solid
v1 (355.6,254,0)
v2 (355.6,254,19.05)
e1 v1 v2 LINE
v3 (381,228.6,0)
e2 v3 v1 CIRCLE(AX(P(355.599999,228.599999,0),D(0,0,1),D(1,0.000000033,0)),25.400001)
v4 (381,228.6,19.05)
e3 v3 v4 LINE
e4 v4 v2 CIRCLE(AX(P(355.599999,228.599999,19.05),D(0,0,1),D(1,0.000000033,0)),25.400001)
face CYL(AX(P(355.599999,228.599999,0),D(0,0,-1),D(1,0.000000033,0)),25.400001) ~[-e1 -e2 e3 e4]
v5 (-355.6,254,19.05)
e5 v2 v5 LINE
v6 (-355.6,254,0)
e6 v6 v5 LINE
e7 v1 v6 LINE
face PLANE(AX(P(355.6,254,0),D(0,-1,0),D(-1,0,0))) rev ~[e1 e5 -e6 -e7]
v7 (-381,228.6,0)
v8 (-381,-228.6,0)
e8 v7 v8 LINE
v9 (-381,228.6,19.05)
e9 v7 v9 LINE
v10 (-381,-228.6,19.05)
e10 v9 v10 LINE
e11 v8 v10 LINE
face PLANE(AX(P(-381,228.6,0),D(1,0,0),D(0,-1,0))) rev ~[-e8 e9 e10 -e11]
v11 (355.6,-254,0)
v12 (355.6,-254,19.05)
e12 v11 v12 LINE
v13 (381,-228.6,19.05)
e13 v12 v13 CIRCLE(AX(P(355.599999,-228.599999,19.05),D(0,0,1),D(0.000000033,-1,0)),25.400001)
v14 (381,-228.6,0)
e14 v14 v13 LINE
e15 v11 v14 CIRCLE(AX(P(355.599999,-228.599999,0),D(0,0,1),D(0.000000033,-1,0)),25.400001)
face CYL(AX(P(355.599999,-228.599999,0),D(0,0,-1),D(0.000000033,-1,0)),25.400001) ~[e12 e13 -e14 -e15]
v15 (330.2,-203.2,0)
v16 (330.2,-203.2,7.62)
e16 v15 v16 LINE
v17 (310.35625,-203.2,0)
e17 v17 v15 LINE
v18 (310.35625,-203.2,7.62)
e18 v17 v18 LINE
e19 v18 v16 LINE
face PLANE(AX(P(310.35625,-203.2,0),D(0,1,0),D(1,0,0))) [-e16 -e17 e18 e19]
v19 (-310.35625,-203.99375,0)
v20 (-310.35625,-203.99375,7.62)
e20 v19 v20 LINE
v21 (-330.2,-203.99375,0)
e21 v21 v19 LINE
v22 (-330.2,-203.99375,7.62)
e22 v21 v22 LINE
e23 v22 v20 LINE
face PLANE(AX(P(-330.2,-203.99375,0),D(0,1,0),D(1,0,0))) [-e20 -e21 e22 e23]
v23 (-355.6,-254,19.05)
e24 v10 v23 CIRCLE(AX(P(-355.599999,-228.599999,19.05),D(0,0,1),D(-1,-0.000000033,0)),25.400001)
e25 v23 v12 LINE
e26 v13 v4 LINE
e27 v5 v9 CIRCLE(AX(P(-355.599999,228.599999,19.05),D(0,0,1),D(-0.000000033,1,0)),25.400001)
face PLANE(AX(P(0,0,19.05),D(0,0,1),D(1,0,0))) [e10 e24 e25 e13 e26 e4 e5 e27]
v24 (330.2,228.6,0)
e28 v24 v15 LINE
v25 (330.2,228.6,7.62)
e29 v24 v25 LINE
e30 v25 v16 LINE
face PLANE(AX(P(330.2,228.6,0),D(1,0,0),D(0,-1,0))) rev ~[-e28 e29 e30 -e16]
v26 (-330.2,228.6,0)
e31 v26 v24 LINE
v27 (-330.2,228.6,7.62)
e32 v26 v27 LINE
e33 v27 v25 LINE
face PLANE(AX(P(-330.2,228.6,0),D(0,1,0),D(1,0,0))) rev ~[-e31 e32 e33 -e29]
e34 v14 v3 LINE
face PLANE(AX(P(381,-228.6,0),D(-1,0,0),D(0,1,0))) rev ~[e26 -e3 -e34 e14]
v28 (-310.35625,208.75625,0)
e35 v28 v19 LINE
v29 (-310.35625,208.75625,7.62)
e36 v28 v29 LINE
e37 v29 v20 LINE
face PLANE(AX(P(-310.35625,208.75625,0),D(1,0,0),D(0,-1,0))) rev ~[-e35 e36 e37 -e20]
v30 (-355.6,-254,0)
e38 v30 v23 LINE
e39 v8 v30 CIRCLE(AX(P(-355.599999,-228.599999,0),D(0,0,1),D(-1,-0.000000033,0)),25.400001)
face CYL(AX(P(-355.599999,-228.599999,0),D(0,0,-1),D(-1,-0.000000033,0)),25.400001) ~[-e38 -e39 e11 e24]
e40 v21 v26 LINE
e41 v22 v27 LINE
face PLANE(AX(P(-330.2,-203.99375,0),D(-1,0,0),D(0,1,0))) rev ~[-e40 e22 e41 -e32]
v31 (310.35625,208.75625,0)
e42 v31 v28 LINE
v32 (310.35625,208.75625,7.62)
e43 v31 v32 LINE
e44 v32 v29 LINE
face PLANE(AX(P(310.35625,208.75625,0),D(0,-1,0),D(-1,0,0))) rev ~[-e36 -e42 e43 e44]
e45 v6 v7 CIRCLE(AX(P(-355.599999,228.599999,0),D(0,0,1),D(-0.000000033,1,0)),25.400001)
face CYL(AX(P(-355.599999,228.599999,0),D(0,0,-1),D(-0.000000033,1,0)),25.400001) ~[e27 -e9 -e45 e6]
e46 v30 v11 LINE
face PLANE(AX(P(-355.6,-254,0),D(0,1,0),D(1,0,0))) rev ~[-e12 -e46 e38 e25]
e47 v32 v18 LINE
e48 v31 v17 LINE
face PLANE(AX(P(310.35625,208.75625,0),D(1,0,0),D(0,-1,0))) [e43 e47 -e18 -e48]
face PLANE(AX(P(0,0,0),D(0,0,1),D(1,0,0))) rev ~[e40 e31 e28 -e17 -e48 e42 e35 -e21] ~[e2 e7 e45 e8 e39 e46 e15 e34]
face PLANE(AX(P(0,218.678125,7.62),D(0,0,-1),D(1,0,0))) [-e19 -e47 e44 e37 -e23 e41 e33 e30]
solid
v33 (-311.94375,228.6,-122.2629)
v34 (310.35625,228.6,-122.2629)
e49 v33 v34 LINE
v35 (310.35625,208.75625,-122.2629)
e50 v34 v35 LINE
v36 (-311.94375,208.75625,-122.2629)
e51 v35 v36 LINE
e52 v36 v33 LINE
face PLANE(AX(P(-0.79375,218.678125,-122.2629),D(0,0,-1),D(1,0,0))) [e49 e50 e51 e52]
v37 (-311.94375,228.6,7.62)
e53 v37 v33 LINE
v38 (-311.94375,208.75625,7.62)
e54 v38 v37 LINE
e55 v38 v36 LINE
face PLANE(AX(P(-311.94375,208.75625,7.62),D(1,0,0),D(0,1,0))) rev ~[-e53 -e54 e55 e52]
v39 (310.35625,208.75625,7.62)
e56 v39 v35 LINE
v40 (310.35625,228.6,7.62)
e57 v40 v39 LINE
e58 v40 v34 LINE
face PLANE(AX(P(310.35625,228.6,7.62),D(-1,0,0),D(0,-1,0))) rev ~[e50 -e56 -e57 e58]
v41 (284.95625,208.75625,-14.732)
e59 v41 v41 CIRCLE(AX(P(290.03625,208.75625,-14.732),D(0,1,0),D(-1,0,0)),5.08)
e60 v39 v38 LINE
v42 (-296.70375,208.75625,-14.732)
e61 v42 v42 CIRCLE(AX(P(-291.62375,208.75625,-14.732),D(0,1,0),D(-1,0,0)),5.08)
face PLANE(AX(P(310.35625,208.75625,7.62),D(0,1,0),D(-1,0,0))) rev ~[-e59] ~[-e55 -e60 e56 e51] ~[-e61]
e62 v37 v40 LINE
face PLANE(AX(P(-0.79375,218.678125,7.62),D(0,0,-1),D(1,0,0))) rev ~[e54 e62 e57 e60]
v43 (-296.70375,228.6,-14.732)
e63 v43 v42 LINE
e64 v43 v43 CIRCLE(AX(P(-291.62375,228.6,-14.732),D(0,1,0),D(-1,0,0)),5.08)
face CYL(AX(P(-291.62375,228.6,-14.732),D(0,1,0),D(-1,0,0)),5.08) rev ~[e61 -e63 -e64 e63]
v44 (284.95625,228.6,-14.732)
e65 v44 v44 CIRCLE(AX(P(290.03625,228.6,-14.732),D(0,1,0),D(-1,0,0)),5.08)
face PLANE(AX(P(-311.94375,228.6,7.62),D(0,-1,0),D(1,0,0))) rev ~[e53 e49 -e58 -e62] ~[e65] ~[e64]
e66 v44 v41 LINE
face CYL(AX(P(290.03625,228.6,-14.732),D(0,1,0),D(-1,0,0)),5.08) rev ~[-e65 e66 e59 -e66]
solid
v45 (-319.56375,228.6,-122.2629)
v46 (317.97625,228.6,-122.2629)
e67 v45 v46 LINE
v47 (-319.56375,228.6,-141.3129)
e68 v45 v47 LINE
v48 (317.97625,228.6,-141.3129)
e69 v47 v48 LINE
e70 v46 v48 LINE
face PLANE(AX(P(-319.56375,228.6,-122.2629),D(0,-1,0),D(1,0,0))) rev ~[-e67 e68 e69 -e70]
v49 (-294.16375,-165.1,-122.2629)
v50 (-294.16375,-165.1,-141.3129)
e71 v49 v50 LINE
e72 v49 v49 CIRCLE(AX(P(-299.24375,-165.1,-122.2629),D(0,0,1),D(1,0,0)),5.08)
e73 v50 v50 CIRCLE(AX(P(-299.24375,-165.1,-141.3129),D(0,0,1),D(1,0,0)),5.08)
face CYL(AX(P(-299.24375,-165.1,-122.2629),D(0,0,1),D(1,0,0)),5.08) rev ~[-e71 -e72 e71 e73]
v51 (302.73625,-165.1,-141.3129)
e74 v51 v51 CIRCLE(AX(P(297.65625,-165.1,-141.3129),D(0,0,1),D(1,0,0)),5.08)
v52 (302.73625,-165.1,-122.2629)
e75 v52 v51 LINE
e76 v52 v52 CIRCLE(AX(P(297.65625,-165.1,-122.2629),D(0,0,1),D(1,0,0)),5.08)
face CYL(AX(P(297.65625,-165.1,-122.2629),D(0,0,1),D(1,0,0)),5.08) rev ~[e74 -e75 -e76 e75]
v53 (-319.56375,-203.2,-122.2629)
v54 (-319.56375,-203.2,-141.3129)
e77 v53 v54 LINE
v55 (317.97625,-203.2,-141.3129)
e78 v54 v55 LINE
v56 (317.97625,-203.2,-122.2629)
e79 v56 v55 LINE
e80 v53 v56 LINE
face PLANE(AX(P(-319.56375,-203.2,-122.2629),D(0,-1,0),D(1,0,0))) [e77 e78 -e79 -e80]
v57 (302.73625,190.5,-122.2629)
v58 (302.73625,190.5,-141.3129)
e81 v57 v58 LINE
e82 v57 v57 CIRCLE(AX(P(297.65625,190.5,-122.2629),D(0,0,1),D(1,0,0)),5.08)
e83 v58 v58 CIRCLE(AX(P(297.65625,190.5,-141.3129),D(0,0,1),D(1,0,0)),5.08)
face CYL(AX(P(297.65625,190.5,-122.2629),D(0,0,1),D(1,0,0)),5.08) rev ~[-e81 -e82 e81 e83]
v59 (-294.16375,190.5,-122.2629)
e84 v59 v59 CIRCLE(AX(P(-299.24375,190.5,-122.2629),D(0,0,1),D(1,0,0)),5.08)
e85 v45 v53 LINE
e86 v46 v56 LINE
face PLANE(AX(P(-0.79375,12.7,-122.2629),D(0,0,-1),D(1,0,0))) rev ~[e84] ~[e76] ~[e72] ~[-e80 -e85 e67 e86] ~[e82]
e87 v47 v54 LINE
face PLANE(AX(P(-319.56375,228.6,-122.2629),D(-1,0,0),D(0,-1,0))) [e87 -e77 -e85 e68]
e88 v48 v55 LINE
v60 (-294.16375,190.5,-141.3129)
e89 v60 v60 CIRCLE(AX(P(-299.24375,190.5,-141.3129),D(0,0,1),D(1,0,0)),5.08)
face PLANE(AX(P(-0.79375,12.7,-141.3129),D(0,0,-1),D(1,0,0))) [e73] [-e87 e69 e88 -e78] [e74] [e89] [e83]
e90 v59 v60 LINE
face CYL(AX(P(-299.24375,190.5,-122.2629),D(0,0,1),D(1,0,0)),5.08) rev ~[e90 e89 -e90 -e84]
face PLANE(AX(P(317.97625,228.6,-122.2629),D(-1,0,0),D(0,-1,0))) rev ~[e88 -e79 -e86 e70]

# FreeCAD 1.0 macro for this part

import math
import FreeCAD as App
import Part
import Sketcher
Q = App.Units.Quantity


def add_polygon(sketch, points):
    """Adds a closed chain of lines whose ends are joined by coincident constraints."""
    first, n = sketch.GeometryCount, len(points)
    for a, b in zip(points, points[1:] + points[:1]):
        sketch.addGeometry(Part.LineSegment(App.Vector(*a, 0), App.Vector(*b, 0)), False)
    for i in range(n):
        sketch.addConstraint(Sketcher.Constraint("Coincident", first + i, 2, first + (i + 1) % n, 1))

doc = App.newDocument("Part")
params = doc.addObject("Spreadsheet::Sheet", "Params")
for row, (alias, value) in enumerate([
    ("sketch1_radius", "1 in"),
    ("sketch1_width", "28 in"),
    ("sketch1_height", "18 in"),
    ("pad1_length", "0.75 in"),
    ("sketch2_width", "26 in"),
    ("sketch2_height", "17 in"),
    ("sketch2_height2", "16.25 in"),
    ("sketch2_width2", "0.78125 in"),
    ("sketch2_height3", "16.21875 in"),
    ("pocket1_length", "0.3 in"),
    ("sketch3_width", "24.5 in"),
    ("sketch3_height", "0.78125 in"),
    ("pad2_length", "5.1135 in"),
    ("sketch4_diameter", "0.4 in"),
    ("pocket2_length", "1 in"),
    ("sketch5_height", "17 in"),
    ("sketch5_width", "25.1 in"),
    ("pad3_length", "0.75 in"),
    ("sketch6_diameter", "0.4 in"),
    ("pocket3_length", "1 in"),
], start=1):
    params.set(f"A{row}", alias)
    params.set(f"B{row}", "=" + value)
    params.setAlias(f"B{row}", alias)

body = doc.addObject("PartDesign::Body", "Body")

# Sketch on XY plane
sketch1 = doc.addObject("Sketcher::SketchObject", "Sketch")
body.addObject(sketch1)
sketch1.AttachmentSupport = (doc.XY_Plane, [""])
sketch1.MapMode = "FlatFace"
sketch1.addGeometry(Part.LineSegment(App.Vector(356, 254, 0), App.Vector(-356, 254, 0)), False)
sketch1.addGeometry(Part.ArcOfCircle(Part.Circle(App.Vector(-356, 229, 0), App.Vector(0, 0, 1), 25), math.radians(90), math.radians(180)), False)
sketch1.addGeometry(Part.LineSegment(App.Vector(-381, 229, 0), App.Vector(-381, -229, 0)), False)
sketch1.addGeometry(Part.ArcOfCircle(Part.Circle(App.Vector(-356, -229, 0), App.Vector(0, 0, 1), 25), math.radians(-180), math.radians(-90)), False)
sketch1.addGeometry(Part.LineSegment(App.Vector(-356, -254, 0), App.Vector(356, -254, 0)), False)
sketch1.addGeometry(Part.ArcOfCircle(Part.Circle(App.Vector(356, -229, 0), App.Vector(0, 0, 1), 25), math.radians(-90), math.radians(0)), False)
sketch1.addGeometry(Part.LineSegment(App.Vector(381, -229, 0), App.Vector(381, 229, 0)), False)
sketch1.addGeometry(Part.ArcOfCircle(Part.Circle(App.Vector(356, 229, 0), App.Vector(0, 0, 1), 25), math.radians(0), math.radians(90)), False)
sketch1.addConstraint(Sketcher.Constraint("Tangent", 0, 2, 1, 1))
sketch1.addConstraint(Sketcher.Constraint("Tangent", 1, 2, 2, 1))
sketch1.addConstraint(Sketcher.Constraint("Tangent", 2, 2, 3, 1))
sketch1.addConstraint(Sketcher.Constraint("Tangent", 3, 2, 4, 1))
sketch1.addConstraint(Sketcher.Constraint("Tangent", 4, 2, 5, 1))
sketch1.addConstraint(Sketcher.Constraint("Tangent", 5, 2, 6, 1))
sketch1.addConstraint(Sketcher.Constraint("Tangent", 6, 2, 7, 1))
sketch1.addConstraint(Sketcher.Constraint("Tangent", 7, 2, 0, 1))
sketch1.addConstraint(Sketcher.Constraint("Horizontal", 0))
sketch1.addConstraint(Sketcher.Constraint("Vertical", 2))
sketch1.addConstraint(Sketcher.Constraint("Horizontal", 4))
sketch1.addConstraint(Sketcher.Constraint("Vertical", 6))
sketch1.addConstraint(Sketcher.Constraint("Equal", 1, 3))
sketch1.addConstraint(Sketcher.Constraint("Equal", 3, 5))
sketch1.addConstraint(Sketcher.Constraint("Equal", 5, 7))
sketch1.addConstraint(Sketcher.Constraint("Symmetric", 1, 3, 5, 3, -1, 1))
sketch1.addConstraint(Sketcher.Constraint("Radius", 1, Q("1 in")))
sketch1.addConstraint(Sketcher.Constraint("DistanceX", 0, 2, 0, 1, Q("28 in")))
sketch1.addConstraint(Sketcher.Constraint("DistanceY", 2, 2, 2, 1, Q("18 in")))
sketch1.setExpression("Constraints[16]", "Params.sketch1_radius")
sketch1.setExpression("Constraints[17]", "Params.sketch1_width")
sketch1.setExpression("Constraints[18]", "Params.sketch1_height")
pad1 = doc.addObject("PartDesign::Pad", "Pad")
body.addObject(pad1)
pad1.Profile = sketch1
pad1.setExpression("Length", "Params.pad1_length")

# Sketch on XY plane
sketch2 = doc.addObject("Sketcher::SketchObject", "Sketch001")
body.addObject(sketch2)
sketch2.AttachmentSupport = (doc.XY_Plane, [""])
sketch2.MapMode = "FlatFace"
add_polygon(sketch2, [(-330, 229), (330, 229), (330, -203), (310, -203), (310, 209), (-310, 209), (-310, -204), (-330, -204)])  # lines 0-7
sketch2.addConstraint(Sketcher.Constraint("Horizontal", 0))
sketch2.addConstraint(Sketcher.Constraint("Vertical", 1))
sketch2.addConstraint(Sketcher.Constraint("Horizontal", 2))
sketch2.addConstraint(Sketcher.Constraint("Vertical", 3))
sketch2.addConstraint(Sketcher.Constraint("Horizontal", 4))
sketch2.addConstraint(Sketcher.Constraint("Vertical", 5))
sketch2.addConstraint(Sketcher.Constraint("Horizontal", 6))
sketch2.addConstraint(Sketcher.Constraint("Vertical", 7))
sketch2.addConstraint(Sketcher.Constraint("Equal", 2, 6))
sketch2.addConstraint(Sketcher.Constraint("DistanceX", 0, 1, 0, 2, Q("26 in")))
sketch2.addConstraint(Sketcher.Constraint("DistanceY", 1, 2, 1, 1, Q("17 in")))
sketch2.addConstraint(Sketcher.Constraint("DistanceX", -1, 1, 0, 2, Q("13 in")))
sketch2.addConstraint(Sketcher.Constraint("DistanceY", -1, 1, 0, 2, Q("9 in")))
sketch2.addConstraint(Sketcher.Constraint("DistanceY", 5, 2, 5, 1, Q("16.25 in")))
sketch2.addConstraint(Sketcher.Constraint("DistanceX", 2, 2, 2, 1, Q("0.78125 in")))
sketch2.addConstraint(Sketcher.Constraint("DistanceY", 3, 1, 3, 2, Q("16.21875 in")))
sketch2.setExpression("Constraints[17]", "Params.sketch2_width")
sketch2.setExpression("Constraints[18]", "Params.sketch2_height")
sketch2.setExpression("Constraints[21]", "Params.sketch2_height2")
sketch2.setExpression("Constraints[22]", "Params.sketch2_width2")
sketch2.setExpression("Constraints[23]", "Params.sketch2_height3")
pocket1 = doc.addObject("PartDesign::Pocket", "Pocket")
body.addObject(pocket1)
pocket1.Profile = sketch2
pocket1.setExpression("Length", "Params.pocket1_length")
pocket1.Reversed = True
body2 = doc.addObject("PartDesign::Body", "Body001")

# Sketch on XY plane
sketch3 = doc.addObject("Sketcher::SketchObject", "Sketch002")
body2.addObject(sketch3)
sketch3.AttachmentSupport = (doc.getObject("XY_Plane001"), [""])
sketch3.MapMode = "FlatFace"
sketch3.AttachmentOffset = App.Placement(App.Vector(0, 0, 0.3 * 25.4), App.Rotation())
add_polygon(sketch3, [(310, 229), (310, 209), (-312, 209), (-312, 229)])  # lines 0-3
sketch3.addConstraint(Sketcher.Constraint("Vertical", 0))
sketch3.addConstraint(Sketcher.Constraint("Horizontal", 1))
sketch3.addConstraint(Sketcher.Constraint("Vertical", 2))
sketch3.addConstraint(Sketcher.Constraint("Horizontal", 3))
sketch3.addConstraint(Sketcher.Constraint("DistanceX", 1, 2, 1, 1, Q("24.5 in")))
sketch3.addConstraint(Sketcher.Constraint("DistanceY", -1, 1, 2, 2, Q("9 in")))
sketch3.addConstraint(Sketcher.Constraint("DistanceY", 0, 2, 0, 1, Q("0.78125 in")))
sketch3.addConstraint(Sketcher.Constraint("DistanceX", -1, 1, 0, 2, Q("12.21875 in")))
sketch3.setExpression("Constraints[8]", "Params.sketch3_width")
sketch3.setExpression("Constraints[10]", "Params.sketch3_height")
pad2 = doc.addObject("PartDesign::Pad", "Pad001")
body2.addObject(pad2)
pad2.Profile = sketch3
pad2.setExpression("Length", "Params.pad2_length")
pad2.Reversed = True

# Sketch on XZ plane
sketch4 = doc.addObject("Sketcher::SketchObject", "Sketch003")
body2.addObject(sketch4)
sketch4.AttachmentSupport = (doc.getObject("XZ_Plane001"), [""])
sketch4.MapMode = "FlatFace"
sketch4.AttachmentOffset = App.Placement(App.Vector(0, 0, -9 * 25.4), App.Rotation())
sketch4.addGeometry(Part.Circle(App.Vector(290, -15, 0), App.Vector(0, 0, 1), 5), False)
sketch4.addGeometry(Part.Circle(App.Vector(-292, -15, 0), App.Vector(0, 0, 1), 5), False)
sketch4.addConstraint(Sketcher.Constraint("Equal", 0, 1))
sketch4.addConstraint(Sketcher.Constraint("Horizontal", 0, 3, 1, 3))
sketch4.addConstraint(Sketcher.Constraint("Diameter", 0, Q("0.4 in")))
sketch4.addConstraint(Sketcher.Constraint("DistanceX", 1, 3, 0, 3, Q("22.9 in")))
sketch4.addConstraint(Sketcher.Constraint("DistanceY", 0, 3, -1, 1, Q("0.58 in")))
sketch4.addConstraint(Sketcher.Constraint("DistanceX", -1, 1, 0, 3, Q("290.03625 mm")))
sketch4.setExpression("Constraints[2]", "Params.sketch4_diameter")
pocket2 = doc.addObject("PartDesign::Pocket", "Pocket001")
body2.addObject(pocket2)
pocket2.Profile = sketch4
pocket2.setExpression("Length", "Params.pocket2_length")
pocket2.Reversed = True
body3 = doc.addObject("PartDesign::Body", "Body002")

# Sketch on XY plane
sketch5 = doc.addObject("Sketcher::SketchObject", "Sketch004")
body3.addObject(sketch5)
sketch5.AttachmentSupport = (doc.getObject("XY_Plane002"), [""])
sketch5.MapMode = "FlatFace"
sketch5.AttachmentOffset = App.Placement(App.Vector(0, 0, -4.8135 * 25.4), App.Rotation())
add_polygon(sketch5, [(-320, -203), (-320, 229), (318, 229), (318, -203)])  # lines 0-3
sketch5.addConstraint(Sketcher.Constraint("Vertical", 0))
sketch5.addConstraint(Sketcher.Constraint("Horizontal", 1))
sketch5.addConstraint(Sketcher.Constraint("Vertical", 2))
sketch5.addConstraint(Sketcher.Constraint("Horizontal", 3))
sketch5.addConstraint(Sketcher.Constraint("DistanceY", 0, 1, 0, 2, Q("17 in")))
sketch5.addConstraint(Sketcher.Constraint("DistanceX", 1, 1, 1, 2, Q("25.1 in")))
sketch5.addConstraint(Sketcher.Constraint("DistanceY", -1, 1, 0, 2, Q("9 in")))
sketch5.addConstraint(Sketcher.Constraint("DistanceX", 0, 2, -1, 1, Q("319.56375 mm")))
sketch5.setExpression("Constraints[8]", "Params.sketch5_height")
sketch5.setExpression("Constraints[9]", "Params.sketch5_width")
pad3 = doc.addObject("PartDesign::Pad", "Pad002")
body3.addObject(pad3)
pad3.Profile = sketch5
pad3.setExpression("Length", "Params.pad3_length")
pad3.Reversed = True

# Sketch on XY plane
sketch6 = doc.addObject("Sketcher::SketchObject", "Sketch005")
body3.addObject(sketch6)
sketch6.AttachmentSupport = (doc.getObject("XY_Plane002"), [""])
sketch6.MapMode = "FlatFace"
sketch6.AttachmentOffset = App.Placement(App.Vector(0, 0, -4.8135 * 25.4), App.Rotation())
sketch6.addGeometry(Part.Circle(App.Vector(-299, 190, 0), App.Vector(0, 0, 1), 5), False)
sketch6.addGeometry(Part.Circle(App.Vector(298, 190, 0), App.Vector(0, 0, 1), 5), False)
sketch6.addGeometry(Part.Circle(App.Vector(298, -165, 0), App.Vector(0, 0, 1), 5), False)
sketch6.addGeometry(Part.Circle(App.Vector(-299, -165, 0), App.Vector(0, 0, 1), 5), False)
sketch6.addConstraint(Sketcher.Constraint("Equal", 0, 1))
sketch6.addConstraint(Sketcher.Constraint("Equal", 1, 2))
sketch6.addConstraint(Sketcher.Constraint("Equal", 2, 3))
sketch6.addConstraint(Sketcher.Constraint("Horizontal", 0, 3, 1, 3))
sketch6.addConstraint(Sketcher.Constraint("Horizontal", 2, 3, 3, 3))
sketch6.addConstraint(Sketcher.Constraint("Vertical", 1, 3, 2, 3))
sketch6.addConstraint(Sketcher.Constraint("Vertical", 0, 3, 3, 3))
sketch6.addConstraint(Sketcher.Constraint("Diameter", 0, Q("0.4 in")))
sketch6.addConstraint(Sketcher.Constraint("DistanceY", 2, 3, 1, 3, Q("14 in")))
sketch6.addConstraint(Sketcher.Constraint("DistanceY", -1, 1, 0, 3, Q("7.5 in")))
sketch6.addConstraint(Sketcher.Constraint("DistanceX", 0, 3, 1, 3, Q("23.5 in")))
sketch6.addConstraint(Sketcher.Constraint("DistanceX", 0, 3, -1, 1, Q("11.78125 in")))
sketch6.setExpression("Constraints[7]", "Params.sketch6_diameter")
pocket3 = doc.addObject("PartDesign::Pocket", "Pocket002")
body3.addObject(pocket3)
pocket3.Profile = sketch6
pocket3.setExpression("Length", "Params.pocket3_length")

doc.recompute()
